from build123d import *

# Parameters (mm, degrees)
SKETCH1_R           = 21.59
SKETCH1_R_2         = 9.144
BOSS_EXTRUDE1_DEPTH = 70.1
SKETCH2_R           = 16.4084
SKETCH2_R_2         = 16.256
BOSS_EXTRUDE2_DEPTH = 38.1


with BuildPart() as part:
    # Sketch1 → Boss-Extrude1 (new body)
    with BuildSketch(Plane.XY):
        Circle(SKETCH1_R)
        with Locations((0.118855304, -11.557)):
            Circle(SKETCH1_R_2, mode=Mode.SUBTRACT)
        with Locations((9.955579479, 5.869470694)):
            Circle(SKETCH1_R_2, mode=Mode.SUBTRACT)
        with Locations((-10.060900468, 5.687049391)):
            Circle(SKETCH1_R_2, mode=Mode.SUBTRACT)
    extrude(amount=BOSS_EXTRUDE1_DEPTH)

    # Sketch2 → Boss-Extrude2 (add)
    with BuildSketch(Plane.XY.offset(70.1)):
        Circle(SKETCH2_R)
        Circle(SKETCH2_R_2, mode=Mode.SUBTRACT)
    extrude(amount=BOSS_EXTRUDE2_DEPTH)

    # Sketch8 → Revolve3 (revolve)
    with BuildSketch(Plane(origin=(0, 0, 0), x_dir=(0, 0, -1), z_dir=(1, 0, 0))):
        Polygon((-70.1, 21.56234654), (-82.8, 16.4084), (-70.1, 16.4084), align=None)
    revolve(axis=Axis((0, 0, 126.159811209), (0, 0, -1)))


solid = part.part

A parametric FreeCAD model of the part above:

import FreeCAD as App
import Part
import Sketcher
Q = App.Units.Quantity

doc = App.newDocument("Part")
body = doc.addObject("PartDesign::Body", "Body")

sketch1 = body.newObject("Sketcher::SketchObject", "Sketch")
sketch1.AttachmentSupport = (doc.getObject("XY_Plane"), [""])
sketch1.MapMode = "FlatFace"
sketch1.addGeometry(Part.Circle(App.Vector(0, 0, 0), App.Vector(0, 0, 1), 22), False)
sketch1.addGeometry(Part.Circle(App.Vector(0, -12, 0), App.Vector(0, 0, 1), 9), False)
sketch1.addGeometry(Part.Circle(App.Vector(-10, 6, 0), App.Vector(0, 0, 1), 9), False)
sketch1.addGeometry(Part.Circle(App.Vector(10, 6, 0), App.Vector(0, 0, 1), 9), False)
sketch1.addConstraint(Sketcher.Constraint("Coincident", 0, 3, -1, 1))
sketch1.addConstraint(Sketcher.Constraint("Equal", 1, 2))
sketch1.addConstraint(Sketcher.Constraint("Equal", 2, 3))
sketch1.addConstraint(Sketcher.Constraint("Diameter", 0, Q("1.7 in")))
sketch1.addConstraint(Sketcher.Constraint("Diameter", 1, Q("0.72 in")))
sketch1.addConstraint(Sketcher.Constraint("DistanceY", 1, 3, -1, 1, Q("0.455 in")))
sketch1.addConstraint(Sketcher.Constraint("DistanceX", 2, 3, -1, 1, 10.0609))
sketch1.addConstraint(Sketcher.Constraint("DistanceY", -1, 1, 2, 3, 5.687049))
sketch1.addConstraint(Sketcher.Constraint("DistanceX", -1, 1, 3, 3, 9.955579))
sketch1.addConstraint(Sketcher.Constraint("DistanceY", -1, 1, 3, 3, 5.869471))
sketch1.addConstraint(Sketcher.Constraint("DistanceX", -1, 1, 1, 3, 0.118855))
pad1 = body.newObject("PartDesign::Pad", "Pad")
pad1.Profile = sketch1
pad1.Length = 70.1

sketch2 = body.newObject("Sketcher::SketchObject", "Sketch001")
sketch2.AttachmentSupport = (doc.getObject("XY_Plane"), [""])
sketch2.MapMode = "FlatFace"
sketch2.AttachmentOffset = App.Placement(App.Vector(0, 0, 70.1), App.Rotation())
sketch2.addGeometry(Part.Circle(App.Vector(0, 0, 0), App.Vector(0, 0, 1), 16), False)
sketch2.addGeometry(Part.Circle(App.Vector(0, 0, 0), App.Vector(0, 0, 1), 16), False)
sketch2.addConstraint(Sketcher.Constraint("Coincident", 0, 3, -1, 1))
sketch2.addConstraint(Sketcher.Constraint("Coincident", 1, 3, -1, 1))
sketch2.addConstraint(Sketcher.Constraint("Diameter", 1, Q("1.28 in")))
sketch2.addConstraint(Sketcher.Constraint("Diameter", 0, Q("1.292 in")))
pad2 = body.newObject("PartDesign::Pad", "Pad001")
pad2.Profile = sketch2
pad2.Length = Q("1.5 in")

sketch3 = body.newObject("Sketcher::SketchObject", "Sketch002")
sketch3.AttachmentSupport = (doc.getObject("YZ_Plane"), [""])
sketch3.MapMode = "FlatFace"
sketch3.addGeometry(Part.LineSegment(App.Vector(22, 70, 0), App.Vector(16, 83, 0)), False)
sketch3.addGeometry(Part.LineSegment(App.Vector(16, 83, 0), App.Vector(16, 70, 0)), False)
sketch3.addGeometry(Part.LineSegment(App.Vector(16, 70, 0), App.Vector(22, 70, 0)), False)
sketch3.addConstraint(Sketcher.Constraint("Coincident", 0, 2, 1, 1))
sketch3.addConstraint(Sketcher.Constraint("Coincident", 1, 2, 2, 1))
sketch3.addConstraint(Sketcher.Constraint("Coincident", 2, 2, 0, 1))
sketch3.addConstraint(Sketcher.Constraint("Vertical", 1))
sketch3.addConstraint(Sketcher.Constraint("Horizontal", 2))
sketch3.addConstraint(Sketcher.Constraint("DistanceY", 1, 2, 1, 1, Q("0.5 in")))
sketch3.addConstraint(Sketcher.Constraint("DistanceX", -1, 1, 0, 2, Q("0.646 in")))
sketch3.addConstraint(Sketcher.Constraint("DistanceY", -1, 1, 0, 2, 82.8))
sketch3.addConstraint(Sketcher.Constraint("DistanceX", 2, 1, 2, 2, 5.153947))
revolution = body.newObject("PartDesign::Revolution", "Revolution")
revolution.Profile = sketch3
revolution.ReferenceAxis = (sketch3, ["V_Axis"])
revolution.Angle = 360

doc.recompute()
